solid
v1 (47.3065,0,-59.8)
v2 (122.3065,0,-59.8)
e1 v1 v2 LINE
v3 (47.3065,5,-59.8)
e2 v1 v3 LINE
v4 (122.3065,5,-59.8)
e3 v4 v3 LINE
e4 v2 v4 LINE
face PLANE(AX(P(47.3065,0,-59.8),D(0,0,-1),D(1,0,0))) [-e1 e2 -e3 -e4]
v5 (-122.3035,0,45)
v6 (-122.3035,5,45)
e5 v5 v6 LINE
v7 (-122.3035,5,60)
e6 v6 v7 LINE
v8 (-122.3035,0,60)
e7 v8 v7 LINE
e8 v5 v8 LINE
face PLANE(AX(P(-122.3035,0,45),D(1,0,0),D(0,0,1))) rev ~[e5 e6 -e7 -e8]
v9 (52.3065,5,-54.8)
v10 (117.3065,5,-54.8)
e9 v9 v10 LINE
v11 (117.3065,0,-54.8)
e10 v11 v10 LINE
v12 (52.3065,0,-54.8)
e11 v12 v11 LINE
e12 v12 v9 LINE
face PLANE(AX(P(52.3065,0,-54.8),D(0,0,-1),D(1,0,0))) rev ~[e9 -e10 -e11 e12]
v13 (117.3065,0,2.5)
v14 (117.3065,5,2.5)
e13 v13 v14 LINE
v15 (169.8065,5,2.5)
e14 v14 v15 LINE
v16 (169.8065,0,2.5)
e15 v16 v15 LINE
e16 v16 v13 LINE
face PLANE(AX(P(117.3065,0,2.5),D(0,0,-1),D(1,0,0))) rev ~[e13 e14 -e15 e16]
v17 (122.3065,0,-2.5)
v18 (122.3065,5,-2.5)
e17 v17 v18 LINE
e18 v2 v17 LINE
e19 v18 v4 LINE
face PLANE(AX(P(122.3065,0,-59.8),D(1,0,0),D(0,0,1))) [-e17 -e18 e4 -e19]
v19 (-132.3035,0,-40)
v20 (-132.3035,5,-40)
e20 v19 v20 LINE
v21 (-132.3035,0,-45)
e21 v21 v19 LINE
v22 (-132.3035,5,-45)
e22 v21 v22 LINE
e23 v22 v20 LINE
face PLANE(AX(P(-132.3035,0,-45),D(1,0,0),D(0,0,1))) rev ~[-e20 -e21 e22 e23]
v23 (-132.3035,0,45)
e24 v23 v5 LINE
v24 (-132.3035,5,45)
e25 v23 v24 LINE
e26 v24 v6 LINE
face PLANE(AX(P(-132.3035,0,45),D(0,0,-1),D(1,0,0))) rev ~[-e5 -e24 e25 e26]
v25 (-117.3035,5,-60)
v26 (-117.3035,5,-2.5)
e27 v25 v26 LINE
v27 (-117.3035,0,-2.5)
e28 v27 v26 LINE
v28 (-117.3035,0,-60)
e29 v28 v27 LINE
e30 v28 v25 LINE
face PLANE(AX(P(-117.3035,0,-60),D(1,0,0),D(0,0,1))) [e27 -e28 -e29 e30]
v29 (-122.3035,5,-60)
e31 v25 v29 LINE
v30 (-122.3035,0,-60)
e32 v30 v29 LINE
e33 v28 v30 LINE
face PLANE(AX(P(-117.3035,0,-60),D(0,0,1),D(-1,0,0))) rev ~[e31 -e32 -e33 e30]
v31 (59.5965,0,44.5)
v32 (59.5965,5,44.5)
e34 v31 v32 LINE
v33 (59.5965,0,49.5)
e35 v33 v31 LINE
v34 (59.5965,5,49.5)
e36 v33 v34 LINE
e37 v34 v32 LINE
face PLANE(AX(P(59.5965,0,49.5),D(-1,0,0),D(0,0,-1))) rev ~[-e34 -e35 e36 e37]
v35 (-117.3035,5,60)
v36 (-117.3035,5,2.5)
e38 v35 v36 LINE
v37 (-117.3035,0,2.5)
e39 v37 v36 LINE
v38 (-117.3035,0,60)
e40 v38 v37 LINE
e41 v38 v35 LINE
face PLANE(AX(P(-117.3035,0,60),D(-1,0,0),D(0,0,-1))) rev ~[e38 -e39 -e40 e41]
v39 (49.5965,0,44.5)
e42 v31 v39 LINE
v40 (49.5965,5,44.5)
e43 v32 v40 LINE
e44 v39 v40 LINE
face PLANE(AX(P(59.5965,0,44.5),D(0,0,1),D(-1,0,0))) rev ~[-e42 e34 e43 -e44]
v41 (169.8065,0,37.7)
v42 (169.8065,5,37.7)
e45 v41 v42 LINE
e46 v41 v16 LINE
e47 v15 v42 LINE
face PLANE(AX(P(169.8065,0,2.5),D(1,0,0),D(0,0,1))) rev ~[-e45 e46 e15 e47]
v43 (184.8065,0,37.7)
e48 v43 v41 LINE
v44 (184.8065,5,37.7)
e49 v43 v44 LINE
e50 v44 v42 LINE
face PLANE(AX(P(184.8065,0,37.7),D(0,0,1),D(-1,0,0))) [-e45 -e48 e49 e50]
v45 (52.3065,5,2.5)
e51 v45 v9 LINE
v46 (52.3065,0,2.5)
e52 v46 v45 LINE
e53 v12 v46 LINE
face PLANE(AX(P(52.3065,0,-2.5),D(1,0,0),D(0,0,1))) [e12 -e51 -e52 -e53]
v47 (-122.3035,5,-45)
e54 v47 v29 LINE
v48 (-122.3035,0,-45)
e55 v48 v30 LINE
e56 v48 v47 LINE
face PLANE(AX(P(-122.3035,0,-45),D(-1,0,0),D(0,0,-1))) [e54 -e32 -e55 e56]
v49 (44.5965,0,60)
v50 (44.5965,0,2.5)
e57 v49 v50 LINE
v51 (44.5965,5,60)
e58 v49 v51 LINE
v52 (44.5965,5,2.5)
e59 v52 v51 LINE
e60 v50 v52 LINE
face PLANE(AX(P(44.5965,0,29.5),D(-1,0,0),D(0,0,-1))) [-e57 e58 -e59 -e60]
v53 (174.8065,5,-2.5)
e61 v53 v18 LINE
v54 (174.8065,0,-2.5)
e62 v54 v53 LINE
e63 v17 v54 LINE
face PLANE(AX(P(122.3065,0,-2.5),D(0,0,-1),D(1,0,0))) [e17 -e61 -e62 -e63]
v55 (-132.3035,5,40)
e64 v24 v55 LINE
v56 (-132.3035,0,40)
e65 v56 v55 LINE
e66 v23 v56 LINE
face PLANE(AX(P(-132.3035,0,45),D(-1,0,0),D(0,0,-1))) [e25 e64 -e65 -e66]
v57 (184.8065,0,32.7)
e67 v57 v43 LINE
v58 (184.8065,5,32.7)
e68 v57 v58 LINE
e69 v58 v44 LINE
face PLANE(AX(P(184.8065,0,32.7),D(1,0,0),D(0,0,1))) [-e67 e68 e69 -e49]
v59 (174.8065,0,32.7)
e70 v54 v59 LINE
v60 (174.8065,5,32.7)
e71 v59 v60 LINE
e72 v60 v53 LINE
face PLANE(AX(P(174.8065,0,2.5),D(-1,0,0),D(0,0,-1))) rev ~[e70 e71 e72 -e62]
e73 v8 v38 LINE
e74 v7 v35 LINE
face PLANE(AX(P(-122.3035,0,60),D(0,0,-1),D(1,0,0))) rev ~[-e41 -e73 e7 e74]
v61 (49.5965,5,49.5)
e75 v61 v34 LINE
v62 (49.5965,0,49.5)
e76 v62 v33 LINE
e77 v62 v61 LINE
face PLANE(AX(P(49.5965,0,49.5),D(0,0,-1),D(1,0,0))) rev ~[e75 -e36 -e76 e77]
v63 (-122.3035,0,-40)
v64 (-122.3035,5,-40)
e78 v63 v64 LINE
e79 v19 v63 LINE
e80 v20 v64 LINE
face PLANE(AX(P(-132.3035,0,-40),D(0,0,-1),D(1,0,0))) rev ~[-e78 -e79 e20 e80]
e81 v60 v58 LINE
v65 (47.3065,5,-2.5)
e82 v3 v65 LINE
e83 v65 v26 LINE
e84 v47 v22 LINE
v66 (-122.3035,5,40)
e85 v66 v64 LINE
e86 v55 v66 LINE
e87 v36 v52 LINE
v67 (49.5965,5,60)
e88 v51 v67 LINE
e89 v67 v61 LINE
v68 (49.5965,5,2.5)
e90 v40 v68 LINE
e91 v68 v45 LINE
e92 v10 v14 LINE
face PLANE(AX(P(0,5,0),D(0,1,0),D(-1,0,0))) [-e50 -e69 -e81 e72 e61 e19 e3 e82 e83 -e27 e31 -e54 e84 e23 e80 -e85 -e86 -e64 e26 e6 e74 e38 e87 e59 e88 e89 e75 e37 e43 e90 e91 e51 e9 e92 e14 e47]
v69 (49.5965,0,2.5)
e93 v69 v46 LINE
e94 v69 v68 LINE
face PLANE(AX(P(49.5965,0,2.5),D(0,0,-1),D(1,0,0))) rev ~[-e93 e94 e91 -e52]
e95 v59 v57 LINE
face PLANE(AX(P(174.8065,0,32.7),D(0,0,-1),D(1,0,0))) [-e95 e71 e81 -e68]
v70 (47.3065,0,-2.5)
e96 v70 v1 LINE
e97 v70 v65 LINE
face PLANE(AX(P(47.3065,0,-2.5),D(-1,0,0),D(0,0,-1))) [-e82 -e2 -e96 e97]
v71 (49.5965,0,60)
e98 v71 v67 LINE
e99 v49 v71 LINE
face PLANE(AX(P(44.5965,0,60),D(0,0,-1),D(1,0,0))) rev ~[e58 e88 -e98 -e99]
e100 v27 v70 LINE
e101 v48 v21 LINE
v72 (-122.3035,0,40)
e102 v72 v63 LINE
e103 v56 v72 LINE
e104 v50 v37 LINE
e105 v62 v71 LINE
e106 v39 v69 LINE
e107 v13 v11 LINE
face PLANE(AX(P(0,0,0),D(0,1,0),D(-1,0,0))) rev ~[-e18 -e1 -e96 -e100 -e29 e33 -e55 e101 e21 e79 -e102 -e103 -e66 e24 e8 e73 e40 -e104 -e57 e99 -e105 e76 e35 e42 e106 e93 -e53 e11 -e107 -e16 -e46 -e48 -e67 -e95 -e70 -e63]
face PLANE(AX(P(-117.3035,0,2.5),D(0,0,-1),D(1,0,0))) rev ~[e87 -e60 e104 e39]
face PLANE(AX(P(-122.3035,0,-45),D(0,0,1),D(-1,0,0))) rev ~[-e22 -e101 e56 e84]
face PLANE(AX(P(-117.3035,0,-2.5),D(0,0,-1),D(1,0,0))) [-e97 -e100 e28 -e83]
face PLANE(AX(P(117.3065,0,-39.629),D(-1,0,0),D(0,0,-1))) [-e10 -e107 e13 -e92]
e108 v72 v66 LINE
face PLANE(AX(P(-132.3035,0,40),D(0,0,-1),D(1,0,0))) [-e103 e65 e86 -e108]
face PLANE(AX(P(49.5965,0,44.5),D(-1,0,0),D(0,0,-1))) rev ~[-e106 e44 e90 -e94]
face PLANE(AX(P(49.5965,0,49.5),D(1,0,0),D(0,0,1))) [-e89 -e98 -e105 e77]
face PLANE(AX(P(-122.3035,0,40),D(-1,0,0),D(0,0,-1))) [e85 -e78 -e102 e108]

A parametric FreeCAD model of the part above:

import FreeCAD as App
import Part
import Sketcher

V = App.Vector
Q = App.Units.Quantity

doc = App.newDocument("Part")
body = doc.addObject("PartDesign::Body", "Body")

# Sketch on XZ plane
sketch1 = doc.addObject("Sketcher::SketchObject", "Sketch")
body.addObject(sketch1)
sketch1.AttachmentSupport = (doc.XZ_Plane, [""])
sketch1.MapMode = "FlatFace"
sketch1.addGeometry(Part.LineSegment(V(-122.3, 45, 0), V(-122.3, 60, 0)), False)
sketch1.addGeometry(Part.LineSegment(V(-122.3, 60, 0), V(-117.3, 60, 0)), False)
sketch1.addGeometry(Part.LineSegment(V(-117.3, 60, 0), V(-117.3, 2.5, 0)), False)
sketch1.addGeometry(Part.LineSegment(V(-117.3, 2.5, 0), V(44.6, 2.5, 0)), False)
sketch1.addGeometry(Part.LineSegment(V(44.6, 2.5, 0), V(44.6, 60, 0)), False)
sketch1.addGeometry(Part.LineSegment(V(44.6, 60, 0), V(49.6, 60, 0)), False)
sketch1.addGeometry(Part.LineSegment(V(49.6, 60, 0), V(49.6, 49.5, 0)), False)
sketch1.addGeometry(Part.LineSegment(V(49.6, 49.5, 0), V(59.6, 49.5, 0)), False)
sketch1.addGeometry(Part.LineSegment(V(59.6, 49.5, 0), V(59.6, 44.5, 0)), False)
sketch1.addGeometry(Part.LineSegment(V(59.6, 44.5, 0), V(49.6, 44.5, 0)), False)
sketch1.addGeometry(Part.LineSegment(V(49.6, 44.5, 0), V(49.6, 2.5, 0)), False)
sketch1.addGeometry(Part.LineSegment(V(49.6, 2.5, 0), V(52.3, 2.5, 0)), False)
sketch1.addGeometry(Part.LineSegment(V(52.3, 2.5, 0), V(52.3, -54.8, 0)), False)
sketch1.addGeometry(Part.LineSegment(V(52.3, -54.8, 0), V(117.3, -54.8, 0)), False)
sketch1.addGeometry(Part.LineSegment(V(117.3, -54.8, 0), V(117.3, 2.5, 0)), False)
sketch1.addGeometry(Part.LineSegment(V(117.3, 2.5, 0), V(169.8, 2.5, 0)), False)
sketch1.addGeometry(Part.LineSegment(V(169.8, 2.5, 0), V(169.8, 37.7, 0)), False)
sketch1.addGeometry(Part.LineSegment(V(169.8, 37.7, 0), V(184.8, 37.7, 0)), False)
sketch1.addGeometry(Part.LineSegment(V(184.8, 37.7, 0), V(184.8, 32.7, 0)), False)
sketch1.addGeometry(Part.LineSegment(V(184.8, 32.7, 0), V(174.8, 32.7, 0)), False)
sketch1.addGeometry(Part.LineSegment(V(174.8, 32.7, 0), V(174.8, -2.5, 0)), False)
sketch1.addGeometry(Part.LineSegment(V(174.8, -2.5, 0), V(122.3, -2.5, 0)), False)
sketch1.addGeometry(Part.LineSegment(V(122.3, -2.5, 0), V(122.3, -59.8, 0)), False)
sketch1.addGeometry(Part.LineSegment(V(122.3, -59.8, 0), V(47.3, -59.8, 0)), False)
sketch1.addGeometry(Part.LineSegment(V(47.3, -59.8, 0), V(47.3, -2.5, 0)), False)
sketch1.addGeometry(Part.LineSegment(V(47.3, -2.5, 0), V(-117.3, -2.5, 0)), False)
sketch1.addGeometry(Part.LineSegment(V(-117.3, -2.5, 0), V(-117.3, -60, 0)), False)
sketch1.addGeometry(Part.LineSegment(V(-117.3, -60, 0), V(-122.3, -60, 0)), False)
sketch1.addGeometry(Part.LineSegment(V(-122.3, -60, 0), V(-122.3, -45, 0)), False)
sketch1.addGeometry(Part.LineSegment(V(-122.3, -45, 0), V(-132.3, -45, 0)), False)
sketch1.addGeometry(Part.LineSegment(V(-132.3, -45, 0), V(-132.3, -40, 0)), False)
sketch1.addGeometry(Part.LineSegment(V(-132.3, -40, 0), V(-122.3, -40, 0)), False)
sketch1.addGeometry(Part.LineSegment(V(-122.3, -40, 0), V(-122.3, 40, 0)), False)
sketch1.addGeometry(Part.LineSegment(V(-122.3, 40, 0), V(-132.3, 40, 0)), False)
sketch1.addGeometry(Part.LineSegment(V(-132.3, 40, 0), V(-132.3, 45, 0)), False)
sketch1.addGeometry(Part.LineSegment(V(-132.3, 45, 0), V(-122.3, 45, 0)), False)
sketch1.addConstraint(Sketcher.Constraint("Coincident", 0, 2, 1, 1))
sketch1.addConstraint(Sketcher.Constraint("Coincident", 1, 2, 2, 1))
sketch1.addConstraint(Sketcher.Constraint("Coincident", 2, 2, 3, 1))
sketch1.addConstraint(Sketcher.Constraint("Coincident", 3, 2, 4, 1))
sketch1.addConstraint(Sketcher.Constraint("Coincident", 4, 2, 5, 1))
sketch1.addConstraint(Sketcher.Constraint("Coincident", 5, 2, 6, 1))
sketch1.addConstraint(Sketcher.Constraint("Coincident", 6, 2, 7, 1))
sketch1.addConstraint(Sketcher.Constraint("Coincident", 7, 2, 8, 1))
sketch1.addConstraint(Sketcher.Constraint("Coincident", 8, 2, 9, 1))
sketch1.addConstraint(Sketcher.Constraint("Coincident", 9, 2, 10, 1))
sketch1.addConstraint(Sketcher.Constraint("Coincident", 10, 2, 11, 1))
sketch1.addConstraint(Sketcher.Constraint("Coincident", 11, 2, 12, 1))
sketch1.addConstraint(Sketcher.Constraint("Coincident", 12, 2, 13, 1))
sketch1.addConstraint(Sketcher.Constraint("Coincident", 13, 2, 14, 1))
sketch1.addConstraint(Sketcher.Constraint("Coincident", 14, 2, 15, 1))
sketch1.addConstraint(Sketcher.Constraint("Coincident", 15, 2, 16, 1))
sketch1.addConstraint(Sketcher.Constraint("Coincident", 16, 2, 17, 1))
sketch1.addConstraint(Sketcher.Constraint("Coincident", 17, 2, 18, 1))
sketch1.addConstraint(Sketcher.Constraint("Coincident", 18, 2, 19, 1))
sketch1.addConstraint(Sketcher.Constraint("Coincident", 19, 2, 20, 1))
sketch1.addConstraint(Sketcher.Constraint("Coincident", 20, 2, 21, 1))
sketch1.addConstraint(Sketcher.Constraint("Coincident", 21, 2, 22, 1))
sketch1.addConstraint(Sketcher.Constraint("Coincident", 22, 2, 23, 1))
sketch1.addConstraint(Sketcher.Constraint("Coincident", 23, 2, 24, 1))
sketch1.addConstraint(Sketcher.Constraint("Coincident", 24, 2, 25, 1))
sketch1.addConstraint(Sketcher.Constraint("Coincident", 25, 2, 26, 1))
sketch1.addConstraint(Sketcher.Constraint("Coincident", 26, 2, 27, 1))
sketch1.addConstraint(Sketcher.Constraint("Coincident", 27, 2, 28, 1))
sketch1.addConstraint(Sketcher.Constraint("Coincident", 28, 2, 29, 1))
sketch1.addConstraint(Sketcher.Constraint("Coincident", 29, 2, 30, 1))
sketch1.addConstraint(Sketcher.Constraint("Coincident", 30, 2, 31, 1))
sketch1.addConstraint(Sketcher.Constraint("Coincident", 31, 2, 32, 1))
sketch1.addConstraint(Sketcher.Constraint("Coincident", 32, 2, 33, 1))
sketch1.addConstraint(Sketcher.Constraint("Coincident", 33, 2, 34, 1))
sketch1.addConstraint(Sketcher.Constraint("Coincident", 34, 2, 35, 1))
sketch1.addConstraint(Sketcher.Constraint("Coincident", 35, 2, 0, 1))
sketch1.addConstraint(Sketcher.Constraint("Vertical", 0))
sketch1.addConstraint(Sketcher.Constraint("Horizontal", 1))
sketch1.addConstraint(Sketcher.Constraint("Vertical", 2))
sketch1.addConstraint(Sketcher.Constraint("Horizontal", 3))
sketch1.addConstraint(Sketcher.Constraint("Vertical", 4))
sketch1.addConstraint(Sketcher.Constraint("Horizontal", 5))
sketch1.addConstraint(Sketcher.Constraint("Vertical", 6))
sketch1.addConstraint(Sketcher.Constraint("Horizontal", 7))
sketch1.addConstraint(Sketcher.Constraint("Vertical", 8))
sketch1.addConstraint(Sketcher.Constraint("Horizontal", 9))
sketch1.addConstraint(Sketcher.Constraint("Vertical", 10))
sketch1.addConstraint(Sketcher.Constraint("Horizontal", 11))
sketch1.addConstraint(Sketcher.Constraint("Vertical", 12))
sketch1.addConstraint(Sketcher.Constraint("Horizontal", 13))
sketch1.addConstraint(Sketcher.Constraint("Vertical", 14))
sketch1.addConstraint(Sketcher.Constraint("Horizontal", 15))
sketch1.addConstraint(Sketcher.Constraint("Vertical", 16))
sketch1.addConstraint(Sketcher.Constraint("Horizontal", 17))
sketch1.addConstraint(Sketcher.Constraint("Vertical", 18))
sketch1.addConstraint(Sketcher.Constraint("Horizontal", 19))
sketch1.addConstraint(Sketcher.Constraint("Vertical", 20))
sketch1.addConstraint(Sketcher.Constraint("Horizontal", 21))
sketch1.addConstraint(Sketcher.Constraint("Vertical", 22))
sketch1.addConstraint(Sketcher.Constraint("Horizontal", 23))
sketch1.addConstraint(Sketcher.Constraint("Vertical", 24))
sketch1.addConstraint(Sketcher.Constraint("Horizontal", 25))
sketch1.addConstraint(Sketcher.Constraint("Vertical", 26))
sketch1.addConstraint(Sketcher.Constraint("Horizontal", 27))
sketch1.addConstraint(Sketcher.Constraint("Vertical", 28))
sketch1.addConstraint(Sketcher.Constraint("Horizontal", 29))
sketch1.addConstraint(Sketcher.Constraint("Vertical", 30))
sketch1.addConstraint(Sketcher.Constraint("Horizontal", 31))
sketch1.addConstraint(Sketcher.Constraint("Vertical", 32))
sketch1.addConstraint(Sketcher.Constraint("Horizontal", 33))
sketch1.addConstraint(Sketcher.Constraint("Vertical", 34))
sketch1.addConstraint(Sketcher.Constraint("Horizontal", 35))
sketch1.addConstraint(Sketcher.Constraint("Symmetric", 2, 2, 25, 2, -1))
sketch1.addConstraint(Sketcher.Constraint("Symmetric", 0, 2, 27, 2, -1))
sketch1.addConstraint(Sketcher.Constraint("Symmetric", 30, 2, 33, 2, -1))
sketch1.addConstraint(Sketcher.Constraint("Horizontal", 1, 2, 4, 2))
sketch1.addConstraint(Sketcher.Constraint("Horizontal", 3, 2, 10, 2))
sketch1.addConstraint(Sketcher.Constraint("Horizontal", 11, 2, 14, 2))
sketch1.addConstraint(Sketcher.Constraint("Horizontal", 21, 2, 24, 2))
sketch1.addConstraint(Sketcher.Constraint("Vertical", 6, 2, 9, 2))
sketch1.addConstraint(Sketcher.Constraint("Vertical", 28, 2, 31, 2))
sketch1.addConstraint(Sketcher.Constraint("Equal", 1, 5))
sketch1.addConstraint(Sketcher.Constraint("Equal", 9, 19))
sketch1.addConstraint(Sketcher.Constraint("Equal", 15, 21))
sketch1.addConstraint(Sketcher.Constraint("Equal", 19, 29))
sketch1.addConstraint(Sketcher.Constraint("Equal", 17, 0))
sketch1.addConstraint(Sketcher.Constraint("Equal", 27, 8))
sketch1.addConstraint(Sketcher.Constraint("Equal", 8, 18))
sketch1.addConstraint(Sketcher.Constraint("Equal", 16, 20))
sketch1.addConstraint(Sketcher.Constraint("Equal", 14, 22))
sketch1.addConstraint(Sketcher.Constraint("Equal", 0, 28))
sketch1.addConstraint(Sketcher.Constraint("Equal", 18, 30))
sketch1.addConstraint(Sketcher.Constraint("DistanceX", 1, 1, 1, 2, Q("5 mm")))
sketch1.addConstraint(Sketcher.Constraint("DistanceX", 7, 1, 7, 2, Q("10 mm")))
sketch1.addConstraint(Sketcher.Constraint("DistanceX", 13, 1, 13, 2, Q("65 mm")))
sketch1.addConstraint(Sketcher.Constraint("DistanceX", 17, 1, 17, 2, Q("15 mm")))
sketch1.addConstraint(Sketcher.Constraint("DistanceY", 2, 2, 2, 1, Q("57.5 mm")))
sketch1.addConstraint(Sketcher.Constraint("DistanceX", 23, 2, 12, 2, Q("5 mm")))
sketch1.addConstraint(Sketcher.Constraint("DistanceX", 0, 2, 5, 2, Q("171.9 mm")))
sketch1.addConstraint(Sketcher.Constraint("DistanceX", 14, 2, 19, 2, Q("57.5 mm")))
sketch1.addConstraint(Sketcher.Constraint("DistanceY", 10, 2, 10, 1, Q("42 mm")))
sketch1.addConstraint(Sketcher.Constraint("DistanceY", 12, 2, 12, 1, Q("57.3 mm")))
sketch1.addConstraint(Sketcher.Constraint("DistanceY", 16, 1, 16, 2, Q("35.2 mm")))
sketch1.addConstraint(Sketcher.Constraint("DistanceX", 11, 1, 11, 2, Q("2.71 mm")))
sketch1.addConstraint(Sketcher.Constraint("DistanceX", 0, 2, -1, 1, Q("122.3035 mm")))
pad1 = doc.addObject("PartDesign::Pad", "Pad")
body.addObject(pad1)
pad1.Profile = sketch1
pad1.Length = 5
pad1.Reversed = True

doc.recompute()
